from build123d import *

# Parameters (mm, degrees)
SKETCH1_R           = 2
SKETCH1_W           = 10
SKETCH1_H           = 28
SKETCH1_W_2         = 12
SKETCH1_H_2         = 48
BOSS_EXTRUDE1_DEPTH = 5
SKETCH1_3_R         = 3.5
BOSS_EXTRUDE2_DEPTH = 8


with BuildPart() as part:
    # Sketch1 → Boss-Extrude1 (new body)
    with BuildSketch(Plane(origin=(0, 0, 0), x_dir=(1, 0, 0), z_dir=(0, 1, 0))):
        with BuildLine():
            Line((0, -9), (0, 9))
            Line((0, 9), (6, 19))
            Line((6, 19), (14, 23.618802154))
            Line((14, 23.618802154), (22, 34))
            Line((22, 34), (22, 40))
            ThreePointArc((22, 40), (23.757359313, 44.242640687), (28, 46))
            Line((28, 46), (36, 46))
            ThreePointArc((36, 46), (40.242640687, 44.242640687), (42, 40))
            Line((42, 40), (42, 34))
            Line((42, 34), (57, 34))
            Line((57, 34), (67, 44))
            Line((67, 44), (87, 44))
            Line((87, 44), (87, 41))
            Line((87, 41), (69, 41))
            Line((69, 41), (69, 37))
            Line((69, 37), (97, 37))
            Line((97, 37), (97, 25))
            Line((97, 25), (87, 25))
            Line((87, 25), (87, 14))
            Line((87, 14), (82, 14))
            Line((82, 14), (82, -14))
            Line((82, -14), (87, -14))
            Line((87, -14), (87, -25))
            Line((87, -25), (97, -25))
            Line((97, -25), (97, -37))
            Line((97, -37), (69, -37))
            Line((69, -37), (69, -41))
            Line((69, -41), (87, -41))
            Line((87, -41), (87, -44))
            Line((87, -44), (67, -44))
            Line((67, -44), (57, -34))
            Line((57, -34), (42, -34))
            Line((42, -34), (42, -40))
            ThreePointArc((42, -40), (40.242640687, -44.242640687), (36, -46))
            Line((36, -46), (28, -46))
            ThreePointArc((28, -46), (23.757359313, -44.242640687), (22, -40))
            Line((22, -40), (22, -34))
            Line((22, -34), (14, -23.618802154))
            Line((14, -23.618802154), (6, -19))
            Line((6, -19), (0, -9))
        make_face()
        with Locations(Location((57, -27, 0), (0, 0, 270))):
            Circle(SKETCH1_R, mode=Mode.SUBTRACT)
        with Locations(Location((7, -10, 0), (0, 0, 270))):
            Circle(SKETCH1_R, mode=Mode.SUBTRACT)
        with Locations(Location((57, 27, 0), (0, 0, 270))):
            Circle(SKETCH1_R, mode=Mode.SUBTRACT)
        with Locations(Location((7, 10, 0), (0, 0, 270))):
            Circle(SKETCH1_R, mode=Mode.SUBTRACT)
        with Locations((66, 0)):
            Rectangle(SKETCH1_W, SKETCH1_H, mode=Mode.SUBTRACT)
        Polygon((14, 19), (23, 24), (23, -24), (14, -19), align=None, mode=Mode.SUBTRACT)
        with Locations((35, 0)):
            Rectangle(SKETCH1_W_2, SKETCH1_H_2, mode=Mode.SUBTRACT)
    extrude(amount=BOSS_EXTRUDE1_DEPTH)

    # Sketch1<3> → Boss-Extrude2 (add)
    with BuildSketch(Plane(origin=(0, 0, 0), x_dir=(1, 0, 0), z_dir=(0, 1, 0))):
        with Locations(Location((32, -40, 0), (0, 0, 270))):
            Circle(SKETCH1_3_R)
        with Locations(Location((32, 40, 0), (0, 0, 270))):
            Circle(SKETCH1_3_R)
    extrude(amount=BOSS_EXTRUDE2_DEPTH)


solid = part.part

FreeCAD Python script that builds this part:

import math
import FreeCAD as App
import Part
import Sketcher
Q = App.Units.Quantity

doc = App.newDocument("Part")
params = doc.addObject("Spreadsheet::Sheet", "Params")
for row, (alias, value) in enumerate([
    ("sketch1_diameter", "4 mm"),
    ("sketch1_radius", "6 mm"),
    ("sketch1_width", "8 mm"),
    ("sketch1_width2", "15 mm"),
    ("sketch1_width3", "20 mm"),
    ("pad1_length", "5 mm"),
    ("sketch2_diameter", "7 mm"),
    ("pad2_length", "8 mm"),
], start=1):
    params.set(f"A{row}", alias)
    params.set(f"B{row}", "=" + value)
    params.setAlias(f"B{row}", alias)

body = doc.addObject("PartDesign::Body", "Body")

# Sketch on XZ plane
sketch1 = body.newObject("Sketcher::SketchObject", "Sketch")
sketch1.AttachmentSupport = (doc.getObject("XZ_Plane"), [""])
sketch1.MapMode = "FlatFace"
sketch1.addGeometry(Part.LineSegment(App.Vector(0, -9, 0), App.Vector(0, 9, 0)), False)
sketch1.addGeometry(Part.LineSegment(App.Vector(0, 9, 0), App.Vector(6, 19, 0)), False)
sketch1.addGeometry(Part.LineSegment(App.Vector(6, 19, 0), App.Vector(14, 23.6, 0)), False)
sketch1.addGeometry(Part.LineSegment(App.Vector(14, 23.6, 0), App.Vector(22, 34, 0)), False)
sketch1.addGeometry(Part.LineSegment(App.Vector(22, 34, 0), App.Vector(22, 40, 0)), False)
sketch1.addGeometry(Part.ArcOfCircle(Part.Circle(App.Vector(28, 40, 0), App.Vector(0, 0, 1), 6), math.radians(90), math.radians(180)), False)
sketch1.addGeometry(Part.LineSegment(App.Vector(28, 46, 0), App.Vector(36, 46, 0)), False)
sketch1.addGeometry(Part.ArcOfCircle(Part.Circle(App.Vector(36, 40, 0), App.Vector(0, 0, 1), 6), math.radians(0), math.radians(90)), False)
sketch1.addGeometry(Part.LineSegment(App.Vector(42, 40, 0), App.Vector(42, 34, 0)), False)
sketch1.addGeometry(Part.LineSegment(App.Vector(42, 34, 0), App.Vector(57, 34, 0)), False)
sketch1.addGeometry(Part.LineSegment(App.Vector(57, 34, 0), App.Vector(67, 44, 0)), False)
sketch1.addGeometry(Part.LineSegment(App.Vector(67, 44, 0), App.Vector(87, 44, 0)), False)
sketch1.addGeometry(Part.LineSegment(App.Vector(87, 44, 0), App.Vector(87, 41, 0)), False)
sketch1.addGeometry(Part.LineSegment(App.Vector(87, 41, 0), App.Vector(69, 41, 0)), False)
sketch1.addGeometry(Part.LineSegment(App.Vector(69, 41, 0), App.Vector(69, 37, 0)), False)
sketch1.addGeometry(Part.LineSegment(App.Vector(69, 37, 0), App.Vector(97, 37, 0)), False)
sketch1.addGeometry(Part.LineSegment(App.Vector(97, 37, 0), App.Vector(97, 25, 0)), False)
sketch1.addGeometry(Part.LineSegment(App.Vector(97, 25, 0), App.Vector(87, 25, 0)), False)
sketch1.addGeometry(Part.LineSegment(App.Vector(87, 25, 0), App.Vector(87, 14, 0)), False)
sketch1.addGeometry(Part.LineSegment(App.Vector(87, 14, 0), App.Vector(82, 14, 0)), False)
sketch1.addGeometry(Part.LineSegment(App.Vector(82, 14, 0), App.Vector(82, -14, 0)), False)
sketch1.addGeometry(Part.LineSegment(App.Vector(82, -14, 0), App.Vector(87, -14, 0)), False)
sketch1.addGeometry(Part.LineSegment(App.Vector(87, -14, 0), App.Vector(87, -25, 0)), False)
sketch1.addGeometry(Part.LineSegment(App.Vector(87, -25, 0), App.Vector(97, -25, 0)), False)
sketch1.addGeometry(Part.LineSegment(App.Vector(97, -25, 0), App.Vector(97, -37, 0)), False)
sketch1.addGeometry(Part.LineSegment(App.Vector(97, -37, 0), App.Vector(69, -37, 0)), False)
sketch1.addGeometry(Part.LineSegment(App.Vector(69, -37, 0), App.Vector(69, -41, 0)), False)
sketch1.addGeometry(Part.LineSegment(App.Vector(69, -41, 0), App.Vector(87, -41, 0)), False)
sketch1.addGeometry(Part.LineSegment(App.Vector(87, -41, 0), App.Vector(87, -44, 0)), False)
sketch1.addGeometry(Part.LineSegment(App.Vector(87, -44, 0), App.Vector(67, -44, 0)), False)
sketch1.addGeometry(Part.LineSegment(App.Vector(67, -44, 0), App.Vector(57, -34, 0)), False)
sketch1.addGeometry(Part.LineSegment(App.Vector(57, -34, 0), App.Vector(42, -34, 0)), False)
sketch1.addGeometry(Part.LineSegment(App.Vector(42, -34, 0), App.Vector(42, -40, 0)), False)
sketch1.addGeometry(Part.ArcOfCircle(Part.Circle(App.Vector(36, -40, 0), App.Vector(0, 0, 1), 6), math.radians(-90), math.radians(0)), False)
sketch1.addGeometry(Part.LineSegment(App.Vector(36, -46, 0), App.Vector(28, -46, 0)), False)
sketch1.addGeometry(Part.ArcOfCircle(Part.Circle(App.Vector(28, -40, 0), App.Vector(0, 0, 1), 6), math.radians(180), math.radians(270)), False)
sketch1.addGeometry(Part.LineSegment(App.Vector(22, -40, 0), App.Vector(22, -34, 0)), False)
sketch1.addGeometry(Part.LineSegment(App.Vector(22, -34, 0), App.Vector(14, -23.6, 0)), False)
sketch1.addGeometry(Part.LineSegment(App.Vector(14, -23.6, 0), App.Vector(6, -19, 0)), False)
sketch1.addGeometry(Part.LineSegment(App.Vector(6, -19, 0), App.Vector(0, -9, 0)), False)
sketch1.addGeometry(Part.Circle(App.Vector(57, 27, 0), App.Vector(0, 0, 1), 2), False)
sketch1.addGeometry(Part.Circle(App.Vector(7, 10, 0), App.Vector(0, 0, 1), 2), False)
sketch1.addGeometry(Part.LineSegment(App.Vector(61, 14, 0), App.Vector(61, -14, 0)), False)
sketch1.addGeometry(Part.LineSegment(App.Vector(61, -14, 0), App.Vector(71, -14, 0)), False)
sketch1.addGeometry(Part.LineSegment(App.Vector(71, -14, 0), App.Vector(71, 14, 0)), False)
sketch1.addGeometry(Part.LineSegment(App.Vector(71, 14, 0), App.Vector(61, 14, 0)), False)
sketch1.addGeometry(Part.Circle(App.Vector(57, -27, 0), App.Vector(0, 0, 1), 2), False)
sketch1.addGeometry(Part.LineSegment(App.Vector(29, 24, 0), App.Vector(29, -24, 0)), False)
sketch1.addGeometry(Part.LineSegment(App.Vector(29, -24, 0), App.Vector(41, -24, 0)), False)
sketch1.addGeometry(Part.LineSegment(App.Vector(41, -24, 0), App.Vector(41, 24, 0)), False)
sketch1.addGeometry(Part.LineSegment(App.Vector(41, 24, 0), App.Vector(29, 24, 0)), False)
sketch1.addGeometry(Part.LineSegment(App.Vector(14, -19, 0), App.Vector(23, -24, 0)), False)
sketch1.addGeometry(Part.LineSegment(App.Vector(23, -24, 0), App.Vector(23, 24, 0)), False)
sketch1.addGeometry(Part.LineSegment(App.Vector(23, 24, 0), App.Vector(14, 19, 0)), False)
sketch1.addGeometry(Part.LineSegment(App.Vector(14, 19, 0), App.Vector(14, -19, 0)), False)
sketch1.addGeometry(Part.Circle(App.Vector(7, -10, 0), App.Vector(0, 0, 1), 2), False)
sketch1.addConstraint(Sketcher.Constraint("Coincident", 0, 2, 1, 1))
sketch1.addConstraint(Sketcher.Constraint("Coincident", 1, 2, 2, 1))
sketch1.addConstraint(Sketcher.Constraint("Coincident", 2, 2, 3, 1))
sketch1.addConstraint(Sketcher.Constraint("Coincident", 3, 2, 4, 1))
sketch1.addConstraint(Sketcher.Constraint("Tangent", 4, 2, 5, 2))
sketch1.addConstraint(Sketcher.Constraint("Tangent", 5, 1, 6, 1))
sketch1.addConstraint(Sketcher.Constraint("Tangent", 6, 2, 7, 2))
sketch1.addConstraint(Sketcher.Constraint("Tangent", 7, 1, 8, 1))
sketch1.addConstraint(Sketcher.Constraint("Coincident", 8, 2, 9, 1))
sketch1.addConstraint(Sketcher.Constraint("Coincident", 9, 2, 10, 1))
sketch1.addConstraint(Sketcher.Constraint("Coincident", 10, 2, 11, 1))
sketch1.addConstraint(Sketcher.Constraint("Coincident", 11, 2, 12, 1))
sketch1.addConstraint(Sketcher.Constraint("Coincident", 12, 2, 13, 1))
sketch1.addConstraint(Sketcher.Constraint("Coincident", 13, 2, 14, 1))
sketch1.addConstraint(Sketcher.Constraint("Coincident", 14, 2, 15, 1))
sketch1.addConstraint(Sketcher.Constraint("Coincident", 15, 2, 16, 1))
sketch1.addConstraint(Sketcher.Constraint("Coincident", 16, 2, 17, 1))
sketch1.addConstraint(Sketcher.Constraint("Coincident", 17, 2, 18, 1))
sketch1.addConstraint(Sketcher.Constraint("Coincident", 18, 2, 19, 1))
sketch1.addConstraint(Sketcher.Constraint("Coincident", 19, 2, 20, 1))
sketch1.addConstraint(Sketcher.Constraint("Coincident", 20, 2, 21, 1))
sketch1.addConstraint(Sketcher.Constraint("Coincident", 21, 2, 22, 1))
sketch1.addConstraint(Sketcher.Constraint("Coincident", 22, 2, 23, 1))
sketch1.addConstraint(Sketcher.Constraint("Coincident", 23, 2, 24, 1))
sketch1.addConstraint(Sketcher.Constraint("Coincident", 24, 2, 25, 1))
sketch1.addConstraint(Sketcher.Constraint("Coincident", 25, 2, 26, 1))
sketch1.addConstraint(Sketcher.Constraint("Coincident", 26, 2, 27, 1))
sketch1.addConstraint(Sketcher.Constraint("Coincident", 27, 2, 28, 1))
sketch1.addConstraint(Sketcher.Constraint("Coincident", 28, 2, 29, 1))
sketch1.addConstraint(Sketcher.Constraint("Coincident", 29, 2, 30, 1))
sketch1.addConstraint(Sketcher.Constraint("Coincident", 30, 2, 31, 1))
sketch1.addConstraint(Sketcher.Constraint("Coincident", 31, 2, 32, 1))
sketch1.addConstraint(Sketcher.Constraint("Tangent", 32, 2, 33, 2))
sketch1.addConstraint(Sketcher.Constraint("Tangent", 33, 1, 34, 1))
sketch1.addConstraint(Sketcher.Constraint("Tangent", 34, 2, 35, 2))
sketch1.addConstraint(Sketcher.Constraint("Tangent", 35, 1, 36, 1))
sketch1.addConstraint(Sketcher.Constraint("Coincident", 36, 2, 37, 1))
sketch1.addConstraint(Sketcher.Constraint("Coincident", 37, 2, 38, 1))
sketch1.addConstraint(Sketcher.Constraint("Coincident", 38, 2, 39, 1))
sketch1.addConstraint(Sketcher.Constraint("Coincident", 39, 2, 0, 1))
sketch1.addConstraint(Sketcher.Constraint("Coincident", 42, 2, 43, 1))
sketch1.addConstraint(Sketcher.Constraint("Coincident", 43, 2, 44, 1))
sketch1.addConstraint(Sketcher.Constraint("Coincident", 44, 2, 45, 1))
sketch1.addConstraint(Sketcher.Constraint("Coincident", 45, 2, 42, 1))
sketch1.addConstraint(Sketcher.Constraint("Coincident", 47, 2, 48, 1))
sketch1.addConstraint(Sketcher.Constraint("Coincident", 48, 2, 49, 1))
sketch1.addConstraint(Sketcher.Constraint("Coincident", 49, 2, 50, 1))
sketch1.addConstraint(Sketcher.Constraint("Coincident", 50, 2, 47, 1))
sketch1.addConstraint(Sketcher.Constraint("Coincident", 51, 2, 52, 1))
sketch1.addConstraint(Sketcher.Constraint("Coincident", 52, 2, 53, 1))
sketch1.addConstraint(Sketcher.Constraint("Coincident", 53, 2, 54, 1))
sketch1.addConstraint(Sketcher.Constraint("Coincident", 54, 2, 51, 1))
sketch1.addConstraint(Sketcher.Constraint("Vertical", 0))
sketch1.addConstraint(Sketcher.Constraint("Vertical", 4))
sketch1.addConstraint(Sketcher.Constraint("Horizontal", 6))
sketch1.addConstraint(Sketcher.Constraint("Vertical", 8))
sketch1.addConstraint(Sketcher.Constraint("Horizontal", 9))
sketch1.addConstraint(Sketcher.Constraint("Horizontal", 11))
sketch1.addConstraint(Sketcher.Constraint("Vertical", 12))
sketch1.addConstraint(Sketcher.Constraint("Horizontal", 13))
sketch1.addConstraint(Sketcher.Constraint("Vertical", 14))
sketch1.addConstraint(Sketcher.Constraint("Horizontal", 15))
sketch1.addConstraint(Sketcher.Constraint("Vertical", 16))
sketch1.addConstraint(Sketcher.Constraint("Horizontal", 17))
sketch1.addConstraint(Sketcher.Constraint("Vertical", 18))
sketch1.addConstraint(Sketcher.Constraint("Horizontal", 19))
sketch1.addConstraint(Sketcher.Constraint("Vertical", 20))
sketch1.addConstraint(Sketcher.Constraint("Horizontal", 21))
sketch1.addConstraint(Sketcher.Constraint("Vertical", 22))
sketch1.addConstraint(Sketcher.Constraint("Horizontal", 23))
sketch1.addConstraint(Sketcher.Constraint("Vertical", 24))
sketch1.addConstraint(Sketcher.Constraint("Horizontal", 25))
sketch1.addConstraint(Sketcher.Constraint("Vertical", 26))
sketch1.addConstraint(Sketcher.Constraint("Horizontal", 27))
sketch1.addConstraint(Sketcher.Constraint("Vertical", 28))
sketch1.addConstraint(Sketcher.Constraint("Horizontal", 29))
sketch1.addConstraint(Sketcher.Constraint("Horizontal", 31))
sketch1.addConstraint(Sketcher.Constraint("Vertical", 32))
sketch1.addConstraint(Sketcher.Constraint("Horizontal", 34))
sketch1.addConstraint(Sketcher.Constraint("Vertical", 36))
sketch1.addConstraint(Sketcher.Constraint("Vertical", 42))
sketch1.addConstraint(Sketcher.Constraint("Horizontal", 43))
sketch1.addConstraint(Sketcher.Constraint("Vertical", 44))
sketch1.addConstraint(Sketcher.Constraint("Horizontal", 45))
sketch1.addConstraint(Sketcher.Constraint("Vertical", 47))
sketch1.addConstraint(Sketcher.Constraint("Horizontal", 48))
sketch1.addConstraint(Sketcher.Constraint("Vertical", 49))
sketch1.addConstraint(Sketcher.Constraint("Horizontal", 50))
sketch1.addConstraint(Sketcher.Constraint("Vertical", 52))
sketch1.addConstraint(Sketcher.Constraint("Vertical", 54))
sketch1.addConstraint(Sketcher.Constraint("Equal", 5, 7))
sketch1.addConstraint(Sketcher.Constraint("Equal", 7, 33))
sketch1.addConstraint(Sketcher.Constraint("Equal", 33, 35))
sketch1.addConstraint(Sketcher.Constraint("Equal", 40, 41))
sketch1.addConstraint(Sketcher.Constraint("Equal", 41, 46))
sketch1.addConstraint(Sketcher.Constraint("Equal", 46, 55))
sketch1.addConstraint(Sketcher.Constraint("Symmetric", 0, 2, 39, 2, -1, 1))
sketch1.addConstraint(Sketcher.Constraint("Symmetric", 7, 3, 33, 3, -1))
sketch1.addConstraint(Sketcher.Constraint("Symmetric", 40, 3, 46, 3, -1))
sketch1.addConstraint(Sketcher.Constraint("Symmetric", 41, 3, 55, 3, -1))
sketch1.addConstraint(Sketcher.Constraint("Symmetric", 18, 2, 21, 2, -1))
sketch1.addConstraint(Sketcher.Constraint("Symmetric", 16, 2, 23, 2, -1))
sketch1.addConstraint(Sketcher.Constraint("Symmetric", 14, 2, 25, 2, -1))
sketch1.addConstraint(Sketcher.Constraint("Symmetric", 12, 2, 27, 2, -1))
sketch1.addConstraint(Sketcher.Constraint("Symmetric", 10, 2, 29, 2, -1))
sketch1.addConstraint(Sketcher.Constraint("Symmetric", 9, 2, 30, 2, -1))
sketch1.addConstraint(Sketcher.Constraint("Symmetric", 3, 2, 36, 2, -1))
sketch1.addConstraint(Sketcher.Constraint("Symmetric", 2, 2, 37, 2, -1))
sketch1.addConstraint(Sketcher.Constraint("Symmetric", 1, 2, 38, 2, -1))
sketch1.addConstraint(Sketcher.Constraint("Perpendicular", 10, 30))
sketch1.addConstraint(Sketcher.Constraint("Horizontal", 3, 2, 8, 2))
sketch1.addConstraint(Sketcher.Constraint("Horizontal", 21, 2, 42, 2))
sketch1.addConstraint(Sketcher.Constraint("Horizontal", 19, 2, 44, 2))
sketch1.addConstraint(Sketcher.Constraint("Horizontal", 48, 2, 51, 2))
sketch1.addConstraint(Sketcher.Constraint("Horizontal", 50, 2, 52, 2))
sketch1.addConstraint(Sketcher.Constraint("Horizontal", 1, 2, 53, 2))
sketch1.addConstraint(Sketcher.Constraint("Horizontal", 38, 2, 54, 2))
sketch1.addConstraint(Sketcher.Constraint("Vertical", 46, 3, 9, 2))
sketch1.addConstraint(Sketcher.Constraint("Vertical", 12, 2, 17, 2))
sketch1.addConstraint(Sketcher.Constraint("Vertical", 37, 2, 53, 2))
sketch1.addConstraint(Sketcher.Constraint("Equal", 23, 43))
sketch1.addConstraint(Sketcher.Constraint("Equal", 27, 0))
sketch1.addConstraint(Sketcher.Constraint("Equal", 50, 16))
sketch1.addConstraint(Sketcher.Constraint("Equal", 25, 20))
sketch1.addConstraint(Sketcher.Constraint("Equal", 51, 53))
sketch1.addConstraint(Sketcher.Constraint("Diameter", 40, Q("4 mm")))
sketch1.addConstraint(Sketcher.Constraint("Radius", 5, Q("6 mm")))
sketch1.addConstraint(Sketcher.Constraint("DistanceX", 6, 1, 6, 2, Q("8 mm")))
sketch1.addConstraint(Sketcher.Constraint("DistanceX", 9, 1, 9, 2, Q("15 mm")))
sketch1.addConstraint(Sketcher.Constraint("DistanceX", 11, 1, 11, 2, Q("20 mm")))
sketch1.addConstraint(Sketcher.Constraint("DistanceX", 13, 2, 13, 1, Q("18 mm")))
sketch1.addConstraint(Sketcher.Constraint("DistanceX", 15, 1, 15, 2, Q("28 mm")))
sketch1.addConstraint(Sketcher.Constraint("DistanceX", 19, 2, 19, 1, Q("5 mm")))
sketch1.addConstraint(Sketcher.Constraint("DistanceX", 48, 1, 48, 2, Q("12 mm")))
sketch1.addConstraint(Sketcher.Constraint("DistanceY", 4, 1, 4, 2, Q("6 mm")))
sketch1.addConstraint(Sketcher.Constraint("DistanceY", 12, 2, 12, 1, Q("3 mm")))
sketch1.addConstraint(Sketcher.Constraint("DistanceY", 14, 2, 14, 1, Q("4 mm")))
sketch1.addConstraint(Sketcher.Constraint("DistanceY", 18, 2, 18, 1, Q("11 mm")))
sketch1.addConstraint(Sketcher.Constraint("DistanceY", 47, 2, 47, 1, Q("48 mm")))
sketch1.addConstraint(Sketcher.Constraint("DistanceY", 54, 2, 54, 1, Q("38 mm")))
sketch1.addConstraint(Sketcher.Constraint("Angle", 2, Q("30 deg")))
sketch1.addConstraint(Sketcher.Constraint("DistanceX", -1, 1, 5, 3, Q("28 mm")))
sketch1.addConstraint(Sketcher.Constraint("DistanceY", -1, 1, 5, 3, Q("40 mm")))
sketch1.addConstraint(Sketcher.Constraint("DistanceY", -1, 1, 40, 3, Q("27 mm")))
sketch1.addConstraint(Sketcher.Constraint("DistanceX", -1, 1, 41, 3, Q("7 mm")))
sketch1.addConstraint(Sketcher.Constraint("DistanceY", -1, 1, 41, 3, Q("10 mm")))
sketch1.addConstraint(Sketcher.Constraint("DistanceX", -1, 1, 1, 2, Q("6 mm")))
sketch1.addConstraint(Sketcher.Constraint("DistanceX", -1, 1, 2, 2, Q("14 mm")))
sketch1.addConstraint(Sketcher.Constraint("DistanceX", -1, 1, 42, 2, Q("61 mm")))
sketch1.addConstraint(Sketcher.Constraint("DistanceX", -1, 1, 47, 2, Q("29 mm")))
sketch1.addConstraint(Sketcher.Constraint("DistanceX", -1, 1, 51, 2, Q("23 mm")))
sketch1.setExpression("Constraints[125]", "Params.sketch1_diameter")
sketch1.setExpression("Constraints[126]", "Params.sketch1_radius")
sketch1.setExpression("Constraints[127]", "Params.sketch1_width")
sketch1.setExpression("Constraints[128]", "Params.sketch1_width2")
sketch1.setExpression("Constraints[129]", "Params.sketch1_width3")
pad1 = body.newObject("PartDesign::Pad", "Pad")
pad1.Profile = sketch1
pad1.setExpression("Length", "Params.pad1_length")
pad1.Reversed = True

# Sketch on XZ plane
sketch2 = body.newObject("Sketcher::SketchObject", "Sketch001")
sketch2.AttachmentSupport = (doc.getObject("XZ_Plane"), [""])
sketch2.MapMode = "FlatFace"
sketch2.addGeometry(Part.Circle(App.Vector(32, 40, 0), App.Vector(0, 0, 1), 3.5), False)
sketch2.addGeometry(Part.Circle(App.Vector(32, -40, 0), App.Vector(0, 0, 1), 3.5), False)
sketch2.addConstraint(Sketcher.Constraint("Equal", 0, 1))
sketch2.addConstraint(Sketcher.Constraint("Symmetric", 0, 3, 1, 3, -1))
sketch2.addConstraint(Sketcher.Constraint("Diameter", 0, Q("7 mm")))
sketch2.addConstraint(Sketcher.Constraint("DistanceX", -1, 1, 0, 3, Q("32 mm")))
sketch2.addConstraint(Sketcher.Constraint("DistanceY", -1, 1, 0, 3, Q("40 mm")))
sketch2.setExpression("Constraints[2]", "Params.sketch2_diameter")
pad2 = body.newObject("PartDesign::Pad", "Pad001")
pad2.Profile = sketch2
pad2.setExpression("Length", "Params.pad2_length")
pad2.Reversed = True

doc.recompute()
